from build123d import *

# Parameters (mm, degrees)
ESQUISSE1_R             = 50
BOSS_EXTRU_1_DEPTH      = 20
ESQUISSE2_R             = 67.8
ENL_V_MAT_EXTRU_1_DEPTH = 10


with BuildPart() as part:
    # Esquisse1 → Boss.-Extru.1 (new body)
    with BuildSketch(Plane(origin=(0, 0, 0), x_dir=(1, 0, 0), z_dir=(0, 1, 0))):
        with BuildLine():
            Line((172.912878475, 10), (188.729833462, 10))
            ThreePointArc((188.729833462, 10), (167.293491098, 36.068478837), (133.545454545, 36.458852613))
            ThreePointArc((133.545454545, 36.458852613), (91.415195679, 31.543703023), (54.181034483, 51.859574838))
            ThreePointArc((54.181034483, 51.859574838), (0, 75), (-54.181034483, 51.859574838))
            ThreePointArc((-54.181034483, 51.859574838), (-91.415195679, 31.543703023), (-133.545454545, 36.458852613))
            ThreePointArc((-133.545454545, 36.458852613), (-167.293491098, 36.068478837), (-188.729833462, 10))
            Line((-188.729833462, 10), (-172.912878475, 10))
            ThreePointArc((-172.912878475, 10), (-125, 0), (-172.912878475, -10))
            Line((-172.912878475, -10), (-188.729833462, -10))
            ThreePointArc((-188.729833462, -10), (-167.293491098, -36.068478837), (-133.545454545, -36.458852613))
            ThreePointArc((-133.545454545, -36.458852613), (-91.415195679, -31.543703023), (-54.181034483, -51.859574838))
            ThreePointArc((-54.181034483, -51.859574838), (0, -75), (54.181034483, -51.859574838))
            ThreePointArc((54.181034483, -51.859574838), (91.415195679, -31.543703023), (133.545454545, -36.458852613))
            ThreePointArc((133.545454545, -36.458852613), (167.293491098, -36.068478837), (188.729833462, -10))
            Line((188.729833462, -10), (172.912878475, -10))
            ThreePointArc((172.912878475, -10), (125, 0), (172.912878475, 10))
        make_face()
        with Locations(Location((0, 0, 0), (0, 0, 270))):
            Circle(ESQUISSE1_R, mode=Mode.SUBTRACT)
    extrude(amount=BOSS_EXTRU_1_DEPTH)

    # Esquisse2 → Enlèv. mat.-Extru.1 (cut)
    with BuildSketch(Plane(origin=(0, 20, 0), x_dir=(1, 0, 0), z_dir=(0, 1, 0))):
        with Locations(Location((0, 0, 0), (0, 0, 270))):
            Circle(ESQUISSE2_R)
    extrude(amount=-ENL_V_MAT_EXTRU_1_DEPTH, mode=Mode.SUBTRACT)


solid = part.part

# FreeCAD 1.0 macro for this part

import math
import FreeCAD as App
import Part
import Sketcher
from FreeCAD import Vector
Q = App.Units.Quantity

doc = App.newDocument("Part")
body = doc.addObject("PartDesign::Body", "Body")

sketch1 = body.newObject("Sketcher::SketchObject", "Sketch")
sketch1.AttachmentSupport = (doc.getObject("XZ_Plane"), [""])
sketch1.MapMode = "FlatFace"
sketch1.addGeometry([
    Part.LineSegment(Vector(173, -10, 0), Vector(189, -10, 0)),
    Part.ArcOfCircle(Part.Circle(Vector(150, 0, 0), Vector(0, 0, 1), 40), math.radians(-114), math.radians(-14)),
    Part.ArcOfCircle(Part.Circle(Vector(105, -100, 0), Vector(0, 0, 1), 70), math.radians(66), math.radians(136)),
    Part.ArcOfCircle(Part.Circle(Vector(0, 0, 0), Vector(0, 0, 1), 75), math.radians(-136), math.radians(-44)),
    Part.ArcOfCircle(Part.Circle(Vector(-105, -100, 0), Vector(0, 0, 1), 70), math.radians(44), math.radians(114)),
    Part.ArcOfCircle(Part.Circle(Vector(-150, 0, 0), Vector(0, 0, 1), 40), math.radians(-166), math.radians(-66)),
    Part.LineSegment(Vector(-189, -10, 0), Vector(-173, -10, 0)),
    Part.ArcOfCircle(Part.Circle(Vector(-150, 0, 0), Vector(0, 0, 1), 25), math.radians(-156), math.radians(156)),
    Part.LineSegment(Vector(-173, 10, 0), Vector(-189, 10, 0)),
    Part.ArcOfCircle(Part.Circle(Vector(-150, 0, 0), Vector(0, 0, 1), 40), math.radians(66), math.radians(166)),
    Part.ArcOfCircle(Part.Circle(Vector(-105, 100, 0), Vector(0, 0, 1), 70), math.radians(-114), math.radians(-44)),
    Part.ArcOfCircle(Part.Circle(Vector(0, 0, 0), Vector(0, 0, 1), 75), math.radians(44), math.radians(136)),
    Part.ArcOfCircle(Part.Circle(Vector(105, 100, 0), Vector(0, 0, 1), 70), math.radians(-136), math.radians(-66)),
    Part.ArcOfCircle(Part.Circle(Vector(150, 0, 0), Vector(0, 0, 1), 40), math.radians(14), math.radians(114)),
    Part.LineSegment(Vector(189, 10, 0), Vector(173, 10, 0)),
    Part.ArcOfCircle(Part.Circle(Vector(150, 0, 0), Vector(0, 0, 1), 25), math.radians(24), math.radians(336)),
    Part.Circle(Vector(0, 0, 0), Vector(0, 0, 1), 50),
], False)
sketch1.addConstraint([
    Sketcher.Constraint("Coincident", 0, 2, 1, 2),
    Sketcher.Constraint("Tangent", 1, 1, 2, 1),
    Sketcher.Constraint("Tangent", 2, 2, 3, 2),
    Sketcher.Constraint("Tangent", 3, 1, 4, 1),
    Sketcher.Constraint("Tangent", 4, 2, 5, 2),
    Sketcher.Constraint("Coincident", 5, 1, 6, 1),
    Sketcher.Constraint("Coincident", 6, 2, 7, 1),
    Sketcher.Constraint("Coincident", 7, 2, 8, 1),
    Sketcher.Constraint("Coincident", 8, 2, 9, 2),
    Sketcher.Constraint("Tangent", 9, 1, 10, 1),
    Sketcher.Constraint("Tangent", 10, 2, 11, 2),
    Sketcher.Constraint("Tangent", 11, 1, 12, 1),
    Sketcher.Constraint("Tangent", 12, 2, 13, 2),
    Sketcher.Constraint("Coincident", 13, 1, 14, 1),
    Sketcher.Constraint("Coincident", 14, 2, 15, 1),
    Sketcher.Constraint("Coincident", 15, 2, 0, 1),
    Sketcher.Constraint("Horizontal", 0),
    Sketcher.Constraint("Horizontal", 6),
    Sketcher.Constraint("Horizontal", 8),
    Sketcher.Constraint("Horizontal", 14),
    Sketcher.Constraint("Coincident", 3, 3, -1, 1),
    Sketcher.Constraint("Coincident", 11, 3, -1, 1),
    Sketcher.Constraint("Coincident", 16, 3, -1, 1),
    Sketcher.Constraint("Coincident", 7, 3, 5, 3),
    Sketcher.Constraint("Coincident", 9, 3, 5, 3),
    Sketcher.Constraint("Coincident", 13, 3, 1, 3),
    Sketcher.Constraint("Coincident", 15, 3, 1, 3),
    Sketcher.Constraint("Equal", 2, 4),
    Sketcher.Constraint("Equal", 1, 5),
    Sketcher.Constraint("Equal", 5, 9),
    Sketcher.Constraint("Equal", 4, 10),
    Sketcher.Constraint("Equal", 3, 11),
    Sketcher.Constraint("Equal", 10, 12),
    Sketcher.Constraint("Equal", 9, 13),
    Sketcher.Constraint("Equal", 7, 15),
    Sketcher.Constraint("Symmetric", 1, 3, 5, 3, -1, 1),
    Sketcher.Constraint("Symmetric", 0, 2, 5, 1, -2),
    Sketcher.Constraint("Horizontal", 8, 2, 13, 1),
    Sketcher.Constraint("Vertical", 6, 2, 7, 2),
    Sketcher.Constraint("Diameter", 16, Q("100 mm")),
    Sketcher.Constraint("Radius", 1, Q("40 mm")),
    Sketcher.Constraint("Radius", 2, Q("70 mm")),
    Sketcher.Constraint("Radius", 3, Q("75 mm")),
    Sketcher.Constraint("Radius", 7, Q("25 mm")),
    Sketcher.Constraint("DistanceX", -1, 1, 1, 3, Q("150 mm")),
    Sketcher.Constraint("DistanceY", 0, 2, -1, 1, Q("10 mm")),
])
pad1 = body.newObject("PartDesign::Pad", "Pad")
pad1.Profile = sketch1
pad1.Length = 20
pad1.Reversed = True

sketch2 = body.newObject("Sketcher::SketchObject", "Sketch001")
sketch2.AttachmentSupport = (doc.getObject("XZ_Plane"), [""])
sketch2.MapMode = "FlatFace"
sketch2.AttachmentOffset = App.Placement(Vector(0, 0, -20), App.Rotation())
sketch2.addGeometry(Part.Circle(Vector(0, 0, 0), Vector(0, 0, 1), 68), False)
sketch2.addConstraint([
    Sketcher.Constraint("Coincident", 0, 3, -1, 1),
    Sketcher.Constraint("Diameter", 0, Q("135.6 mm")),
])
pocket1 = body.newObject("PartDesign::Pocket", "Pocket")
pocket1.Profile = sketch2
pocket1.Length = 10
pocket1.Reversed = True

doc.recompute()
